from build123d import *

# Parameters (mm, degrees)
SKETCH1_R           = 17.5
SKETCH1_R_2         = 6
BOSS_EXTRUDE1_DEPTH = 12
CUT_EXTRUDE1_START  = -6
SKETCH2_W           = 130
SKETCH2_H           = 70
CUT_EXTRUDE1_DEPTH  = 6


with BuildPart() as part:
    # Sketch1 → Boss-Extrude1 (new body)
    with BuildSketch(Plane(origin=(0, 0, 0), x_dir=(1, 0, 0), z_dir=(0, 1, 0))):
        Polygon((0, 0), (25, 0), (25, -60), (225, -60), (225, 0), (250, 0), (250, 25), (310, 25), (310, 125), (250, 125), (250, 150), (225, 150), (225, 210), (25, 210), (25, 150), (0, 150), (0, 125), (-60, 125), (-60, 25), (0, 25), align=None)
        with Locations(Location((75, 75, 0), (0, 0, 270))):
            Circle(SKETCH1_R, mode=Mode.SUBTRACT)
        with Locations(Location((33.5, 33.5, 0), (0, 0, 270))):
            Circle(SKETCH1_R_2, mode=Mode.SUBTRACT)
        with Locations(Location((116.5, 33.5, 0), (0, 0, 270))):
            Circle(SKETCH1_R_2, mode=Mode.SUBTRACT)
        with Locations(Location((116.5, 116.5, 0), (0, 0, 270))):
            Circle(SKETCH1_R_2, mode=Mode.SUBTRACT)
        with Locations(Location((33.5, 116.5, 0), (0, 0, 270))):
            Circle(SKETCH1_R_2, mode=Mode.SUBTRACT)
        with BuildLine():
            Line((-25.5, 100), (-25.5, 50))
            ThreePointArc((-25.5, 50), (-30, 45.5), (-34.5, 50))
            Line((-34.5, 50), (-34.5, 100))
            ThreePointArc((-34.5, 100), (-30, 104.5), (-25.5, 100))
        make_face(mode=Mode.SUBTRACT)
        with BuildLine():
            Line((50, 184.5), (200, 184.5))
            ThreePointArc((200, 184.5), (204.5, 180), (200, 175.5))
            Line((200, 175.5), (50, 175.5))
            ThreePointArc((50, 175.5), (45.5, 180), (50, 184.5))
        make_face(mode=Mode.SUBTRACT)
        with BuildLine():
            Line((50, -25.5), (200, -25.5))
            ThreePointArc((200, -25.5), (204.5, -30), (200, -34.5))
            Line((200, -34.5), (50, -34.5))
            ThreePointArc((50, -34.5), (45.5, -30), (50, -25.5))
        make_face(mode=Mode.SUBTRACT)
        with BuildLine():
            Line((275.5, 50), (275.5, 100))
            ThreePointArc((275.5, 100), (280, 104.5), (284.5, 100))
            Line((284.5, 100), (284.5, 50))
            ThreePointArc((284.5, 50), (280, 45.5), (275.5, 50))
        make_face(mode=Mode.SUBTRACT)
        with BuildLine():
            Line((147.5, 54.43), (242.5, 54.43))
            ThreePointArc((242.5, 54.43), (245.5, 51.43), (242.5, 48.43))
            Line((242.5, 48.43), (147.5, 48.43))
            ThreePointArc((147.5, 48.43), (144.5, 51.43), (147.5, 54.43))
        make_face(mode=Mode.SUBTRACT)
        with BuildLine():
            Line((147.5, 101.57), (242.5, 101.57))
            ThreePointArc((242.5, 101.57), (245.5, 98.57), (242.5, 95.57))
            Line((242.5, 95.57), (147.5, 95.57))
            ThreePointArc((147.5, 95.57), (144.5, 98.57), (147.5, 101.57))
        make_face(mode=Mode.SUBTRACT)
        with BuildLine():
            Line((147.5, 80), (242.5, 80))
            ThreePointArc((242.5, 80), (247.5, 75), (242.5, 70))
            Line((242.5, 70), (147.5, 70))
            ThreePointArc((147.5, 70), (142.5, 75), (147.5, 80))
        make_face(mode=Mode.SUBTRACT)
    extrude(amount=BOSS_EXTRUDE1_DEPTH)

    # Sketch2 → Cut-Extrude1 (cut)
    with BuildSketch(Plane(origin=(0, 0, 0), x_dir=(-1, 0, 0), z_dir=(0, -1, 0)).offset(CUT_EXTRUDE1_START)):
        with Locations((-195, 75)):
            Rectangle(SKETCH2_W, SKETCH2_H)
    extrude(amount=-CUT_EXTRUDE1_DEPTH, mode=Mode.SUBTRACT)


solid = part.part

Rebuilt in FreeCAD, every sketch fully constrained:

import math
import FreeCAD as App
import Part
import Sketcher
from FreeCAD import Vector

doc = App.newDocument("Part")
body = doc.addObject("PartDesign::Body", "Body")

# Sketch on XZ plane
sketch1 = doc.addObject("Sketcher::SketchObject", "Sketch")
body.addObject(sketch1)
sketch1.AttachmentSupport = (doc.XZ_Plane, [""])
sketch1.MapMode = "FlatFace"
sketch1.addGeometry([
    Part.LineSegment(Vector(0, 0, 0), Vector(25, 0, 0)),  # 0
    Part.LineSegment(Vector(25, 0, 0), Vector(25, 60, 0)),  # 1
    Part.LineSegment(Vector(25, 60, 0), Vector(225, 60, 0)),  # 2
    Part.LineSegment(Vector(225, 60, 0), Vector(225, 0, 0)),  # 3
    Part.LineSegment(Vector(225, 0, 0), Vector(250, 0, 0)),  # 4
    Part.LineSegment(Vector(250, 0, 0), Vector(250, -25, 0)),  # 5
    Part.LineSegment(Vector(250, -25, 0), Vector(310, -25, 0)),  # 6
    Part.LineSegment(Vector(310, -25, 0), Vector(310, -125, 0)),  # 7
    Part.LineSegment(Vector(310, -125, 0), Vector(250, -125, 0)),  # 8
    Part.LineSegment(Vector(250, -125, 0), Vector(250, -150, 0)),  # 9
    Part.LineSegment(Vector(250, -150, 0), Vector(225, -150, 0)),  # 10
    Part.LineSegment(Vector(225, -150, 0), Vector(225, -210, 0)),  # 11
    Part.LineSegment(Vector(225, -210, 0), Vector(25, -210, 0)),  # 12
    Part.LineSegment(Vector(25, -210, 0), Vector(25, -150, 0)),  # 13
    Part.LineSegment(Vector(25, -150, 0), Vector(0, -150, 0)),  # 14
    Part.LineSegment(Vector(0, -150, 0), Vector(0, -125, 0)),  # 15
    Part.LineSegment(Vector(0, -125, 0), Vector(-60, -125, 0)),  # 16
    Part.LineSegment(Vector(-60, -125, 0), Vector(-60, -25, 0)),  # 17
    Part.LineSegment(Vector(-60, -25, 0), Vector(0, -25, 0)),  # 18
    Part.LineSegment(Vector(0, -25, 0), Vector(0, 0, 0)),  # 19
    Part.Circle(Vector(33.5, -33.5, 0), Vector(0, 0, 1), 6),  # 20
    Part.Circle(Vector(116.5, -33.5, 0), Vector(0, 0, 1), 6),  # 21
    Part.ArcOfCircle(Part.Circle(Vector(50, 30, 0), Vector(0, 0, 1), 4.5), math.radians(90), math.radians(270)),  # 22
    Part.LineSegment(Vector(50, 25.5, 0), Vector(200, 25.5, 0)),  # 23
    Part.ArcOfCircle(Part.Circle(Vector(200, 30, 0), Vector(0, 0, 1), 4.5), math.radians(-90), math.radians(90)),  # 24
    Part.LineSegment(Vector(200, 34.5, 0), Vector(50, 34.5, 0)),  # 25
    Part.ArcOfCircle(Part.Circle(Vector(147.5, -51.43, 0), Vector(0, 0, 1), 3), math.radians(90), math.radians(270)),  # 26
    Part.LineSegment(Vector(147.5, -54.43, 0), Vector(242.5, -54.43, 0)),  # 27
    Part.ArcOfCircle(Part.Circle(Vector(242.5, -51.43, 0), Vector(0, 0, 1), 3), math.radians(-90), math.radians(90)),  # 28
    Part.LineSegment(Vector(242.5, -48.43, 0), Vector(147.5, -48.43, 0)),  # 29
    Part.ArcOfCircle(Part.Circle(Vector(-30, -100, 0), Vector(0, 0, 1), 4.5), math.radians(180), math.radians(360)),  # 30
    Part.LineSegment(Vector(-25.5, -100, 0), Vector(-25.5, -50, 0)),  # 31
    Part.ArcOfCircle(Part.Circle(Vector(-30, -50, 0), Vector(0, 0, 1), 4.5), math.radians(0), math.radians(180)),  # 32
    Part.LineSegment(Vector(-34.5, -50, 0), Vector(-34.5, -100, 0)),  # 33
    Part.Circle(Vector(33.5, -116.5, 0), Vector(0, 0, 1), 6),  # 34
    Part.Circle(Vector(75, -75, 0), Vector(0, 0, 1), 17.5),  # 35
    Part.Circle(Vector(116.5, -116.5, 0), Vector(0, 0, 1), 6),  # 36
    Part.ArcOfCircle(Part.Circle(Vector(147.5, -75, 0), Vector(0, 0, 1), 5), math.radians(90), math.radians(270)),  # 37
    Part.LineSegment(Vector(147.5, -80, 0), Vector(242.5, -80, 0)),  # 38
    Part.ArcOfCircle(Part.Circle(Vector(242.5, -75, 0), Vector(0, 0, 1), 5), math.radians(-90), math.radians(90)),  # 39
    Part.LineSegment(Vector(242.5, -70, 0), Vector(147.5, -70, 0)),  # 40
    Part.ArcOfCircle(Part.Circle(Vector(147.5, -98.57, 0), Vector(0, 0, 1), 3), math.radians(90), math.radians(270)),  # 41
    Part.LineSegment(Vector(147.5, -101.57, 0), Vector(242.5, -101.57, 0)),  # 42
    Part.ArcOfCircle(Part.Circle(Vector(242.5, -98.57, 0), Vector(0, 0, 1), 3), math.radians(-90), math.radians(90)),  # 43
    Part.LineSegment(Vector(242.5, -95.57, 0), Vector(147.5, -95.57, 0)),  # 44
    Part.ArcOfCircle(Part.Circle(Vector(280, -50, 0), Vector(0, 0, 1), 4.5), math.radians(0), math.radians(180)),  # 45
    Part.LineSegment(Vector(275.5, -50, 0), Vector(275.5, -100, 0)),  # 46
    Part.ArcOfCircle(Part.Circle(Vector(280, -100, 0), Vector(0, 0, 1), 4.5), math.radians(180), math.radians(360)),  # 47
    Part.LineSegment(Vector(284.5, -100, 0), Vector(284.5, -50, 0)),  # 48
    Part.ArcOfCircle(Part.Circle(Vector(50, -180, 0), Vector(0, 0, 1), 4.5), math.radians(90), math.radians(270)),  # 49
    Part.LineSegment(Vector(50, -184.5, 0), Vector(200, -184.5, 0)),  # 50
    Part.ArcOfCircle(Part.Circle(Vector(200, -180, 0), Vector(0, 0, 1), 4.5), math.radians(-90), math.radians(90)),  # 51
    Part.LineSegment(Vector(200, -175.5, 0), Vector(50, -175.5, 0)),  # 52
], False)
sketch1.addConstraint([
    Sketcher.Constraint("Coincident", 0, 2, 1, 1),
    Sketcher.Constraint("Coincident", 1, 2, 2, 1),
    Sketcher.Constraint("Coincident", 2, 2, 3, 1),
    Sketcher.Constraint("Coincident", 3, 2, 4, 1),
    Sketcher.Constraint("Coincident", 4, 2, 5, 1),
    Sketcher.Constraint("Coincident", 5, 2, 6, 1),
    Sketcher.Constraint("Coincident", 6, 2, 7, 1),
    Sketcher.Constraint("Coincident", 7, 2, 8, 1),
    Sketcher.Constraint("Coincident", 8, 2, 9, 1),
    Sketcher.Constraint("Coincident", 9, 2, 10, 1),
    Sketcher.Constraint("Coincident", 10, 2, 11, 1),
    Sketcher.Constraint("Coincident", 11, 2, 12, 1),
    Sketcher.Constraint("Coincident", 12, 2, 13, 1),
    Sketcher.Constraint("Coincident", 13, 2, 14, 1),
    Sketcher.Constraint("Coincident", 14, 2, 15, 1),
    Sketcher.Constraint("Coincident", 15, 2, 16, 1),
    Sketcher.Constraint("Coincident", 16, 2, 17, 1),
    Sketcher.Constraint("Coincident", 17, 2, 18, 1),
    Sketcher.Constraint("Coincident", 18, 2, 19, 1),
    Sketcher.Constraint("Coincident", 19, 2, 0, 1),
    Sketcher.Constraint("Tangent", 22, 2, 23, 1),
    Sketcher.Constraint("Tangent", 23, 2, 24, 1),
    Sketcher.Constraint("Tangent", 24, 2, 25, 1),
    Sketcher.Constraint("Tangent", 25, 2, 22, 1),
    Sketcher.Constraint("Tangent", 26, 2, 27, 1),
    Sketcher.Constraint("Tangent", 27, 2, 28, 1),
    Sketcher.Constraint("Tangent", 28, 2, 29, 1),
    Sketcher.Constraint("Tangent", 29, 2, 26, 1),
    Sketcher.Constraint("Tangent", 30, 2, 31, 1),
    Sketcher.Constraint("Tangent", 31, 2, 32, 1),
    Sketcher.Constraint("Tangent", 32, 2, 33, 1),
    Sketcher.Constraint("Tangent", 33, 2, 30, 1),
    Sketcher.Constraint("Tangent", 37, 2, 38, 1),
    Sketcher.Constraint("Tangent", 38, 2, 39, 1),
    Sketcher.Constraint("Tangent", 39, 2, 40, 1),
    Sketcher.Constraint("Tangent", 40, 2, 37, 1),
    Sketcher.Constraint("Tangent", 41, 2, 42, 1),
    Sketcher.Constraint("Tangent", 42, 2, 43, 1),
    Sketcher.Constraint("Tangent", 43, 2, 44, 1),
    Sketcher.Constraint("Tangent", 44, 2, 41, 1),
    Sketcher.Constraint("Tangent", 45, 2, 46, 1),
    Sketcher.Constraint("Tangent", 46, 2, 47, 1),
    Sketcher.Constraint("Tangent", 47, 2, 48, 1),
    Sketcher.Constraint("Tangent", 48, 2, 45, 1),
    Sketcher.Constraint("Tangent", 49, 2, 50, 1),
    Sketcher.Constraint("Tangent", 50, 2, 51, 1),
    Sketcher.Constraint("Tangent", 51, 2, 52, 1),
    Sketcher.Constraint("Tangent", 52, 2, 49, 1),
    Sketcher.Constraint("Horizontal", 0),
    Sketcher.Constraint("Vertical", 1),
    Sketcher.Constraint("Horizontal", 2),
    Sketcher.Constraint("Vertical", 3),
    Sketcher.Constraint("Horizontal", 4),
    Sketcher.Constraint("Vertical", 5),
    Sketcher.Constraint("Horizontal", 6),
    Sketcher.Constraint("Vertical", 7),
    Sketcher.Constraint("Horizontal", 8),
    Sketcher.Constraint("Vertical", 9),
    Sketcher.Constraint("Horizontal", 10),
    Sketcher.Constraint("Vertical", 11),
    Sketcher.Constraint("Horizontal", 12),
    Sketcher.Constraint("Vertical", 13),
    Sketcher.Constraint("Horizontal", 14),
    Sketcher.Constraint("Vertical", 15),
    Sketcher.Constraint("Horizontal", 16),
    Sketcher.Constraint("Vertical", 17),
    Sketcher.Constraint("Horizontal", 18),
    Sketcher.Constraint("Vertical", 19),
    Sketcher.Constraint("Horizontal", 23),
    Sketcher.Constraint("Horizontal", 25),
    Sketcher.Constraint("Horizontal", 27),
    Sketcher.Constraint("Horizontal", 29),
    Sketcher.Constraint("Vertical", 31),
    Sketcher.Constraint("Vertical", 33),
    Sketcher.Constraint("Horizontal", 38),
    Sketcher.Constraint("Horizontal", 40),
    Sketcher.Constraint("Horizontal", 42),
    Sketcher.Constraint("Horizontal", 44),
    Sketcher.Constraint("Vertical", 46),
    Sketcher.Constraint("Vertical", 48),
    Sketcher.Constraint("Horizontal", 50),
    Sketcher.Constraint("Horizontal", 52),
    Sketcher.Constraint("Coincident", 19, 2, -1, 1),
    Sketcher.Constraint("Equal", 20, 21),
    Sketcher.Constraint("Equal", 24, 30),
    Sketcher.Constraint("Equal", 21, 34),
    Sketcher.Constraint("Equal", 34, 36),
    Sketcher.Constraint("Equal", 28, 41),
    Sketcher.Constraint("Equal", 32, 45),
    Sketcher.Constraint("Equal", 47, 49),
    Sketcher.Constraint("PointOnObject", 3, 2, -1),
    Sketcher.Constraint("PointOnObject", 14, 2, -2),
    Sketcher.Constraint("Horizontal", 20, 3, 21, 3),
    Sketcher.Constraint("Horizontal", 34, 3, 36, 3),
    Sketcher.Constraint("Horizontal", 35, 3, 37, 3),
    Sketcher.Constraint("Horizontal", 32, 3, 45, 3),
    Sketcher.Constraint("Horizontal", 30, 3, 47, 3),
    Sketcher.Constraint("Horizontal", 10, 2, 13, 2),
    Sketcher.Constraint("Horizontal", 8, 2, 15, 2),
    Sketcher.Constraint("Horizontal", 6, 2, 17, 2),
    Sketcher.Constraint("Vertical", 20, 3, 34, 3),
    Sketcher.Constraint("Vertical", 21, 3, 36, 3),
    Sketcher.Constraint("Vertical", 26, 3, 37, 3),
    Sketcher.Constraint("Vertical", 28, 3, 39, 3),
    Sketcher.Constraint("Vertical", 37, 3, 41, 3),
    Sketcher.Constraint("Vertical", 39, 3, 43, 3),
    Sketcher.Constraint("Vertical", 22, 3, 49, 3),
    Sketcher.Constraint("Vertical", 24, 3, 51, 3),
    Sketcher.Constraint("Vertical", 5, 2, 8, 2),
    Sketcher.Constraint("Vertical", 3, 2, 10, 2),
    Sketcher.Constraint("Vertical", 1, 2, 12, 2),
    Sketcher.Constraint("Equal", 0, 4),
    Sketcher.Constraint("Equal", 8, 16),
    Sketcher.Constraint("Equal", 18, 1),
    Sketcher.Constraint("Equal", 14, 5),
    Sketcher.Constraint("Equal", 5, 9),
    Sketcher.Constraint("Equal", 3, 11),
    Sketcher.Constraint("Diameter", 20, 12.0),
    Sketcher.Constraint("Diameter", 35, 35.0),
    Sketcher.Constraint("Radius", 26, 3.0),
    Sketcher.Constraint("Radius", 37, 5.0),
    Sketcher.Constraint("Radius", 22, 4.5),
    Sketcher.Constraint("DistanceX", 0, 1, 0, 2, 25.0),
    Sketcher.Constraint("DistanceX", 2, 1, 2, 2, 200.0),
    Sketcher.Constraint("DistanceX", 6, 1, 6, 2, 60.0),
    Sketcher.Constraint("DistanceX", 23, 1, 23, 2, 150.0),
    Sketcher.Constraint("DistanceX", 27, 1, 27, 2, 95.0),
    Sketcher.Constraint("DistanceY", 7, 2, 7, 1, 100.0),
    Sketcher.Constraint("DistanceY", 31, 1, 31, 2, 50.0),
    Sketcher.Constraint("DistanceX", -1, 1, 22, 3, 50.0),
    Sketcher.Constraint("DistanceY", -1, 1, 22, 3, 30.0),
    Sketcher.Constraint("DistanceX", 30, 3, -1, 1, 30.0),
    Sketcher.Constraint("DistanceY", 30, 3, -1, 1, 100.0),
    Sketcher.Constraint("DistanceX", -1, 1, 35, 3, 75.0),
    Sketcher.Constraint("DistanceY", 35, 3, -1, 1, 75.0),
    Sketcher.Constraint("DistanceX", -1, 1, 45, 3, 280.0),
    Sketcher.Constraint("DistanceY", 49, 3, -1, 1, 180.0),
    Sketcher.Constraint("DistanceX", -1, 1, 20, 3, 33.5),
    Sketcher.Constraint("DistanceY", 20, 3, -1, 1, 33.5),
    Sketcher.Constraint("DistanceX", -1, 1, 21, 3, 116.5),
    Sketcher.Constraint("DistanceX", -1, 1, 26, 3, 147.5),
    Sketcher.Constraint("DistanceY", 34, 3, -1, 1, 116.5),
    Sketcher.Constraint("DistanceY", 26, 3, -1, 1, 51.43),
    Sketcher.Constraint("DistanceY", 41, 3, -1, 1, 98.57),
])
pad1 = doc.addObject("PartDesign::Pad", "Pad")
body.addObject(pad1)
pad1.Profile = sketch1
pad1.Length = 12
pad1.Reversed = True

# Sketch on XZ plane
sketch2 = doc.addObject("Sketcher::SketchObject", "Sketch001")
body.addObject(sketch2)
sketch2.AttachmentSupport = (doc.XZ_Plane, [""])
sketch2.MapMode = "FlatFace"
sketch2.AttachmentOffset = App.Placement(Vector(0, 0, -6), App.Rotation())
sketch2.addGeometry([
    Part.LineSegment(Vector(260, -110, 0), Vector(260, -40, 0)),
    Part.LineSegment(Vector(260, -40, 0), Vector(130, -40, 0)),
    Part.LineSegment(Vector(130, -40, 0), Vector(130, -110, 0)),
    Part.LineSegment(Vector(130, -110, 0), Vector(260, -110, 0)),
], False)
sketch2.addConstraint([
    Sketcher.Constraint("Coincident", 0, 2, 1, 1),
    Sketcher.Constraint("Coincident", 1, 2, 2, 1),
    Sketcher.Constraint("Coincident", 2, 2, 3, 1),
    Sketcher.Constraint("Coincident", 3, 2, 0, 1),
    Sketcher.Constraint("Vertical", 0),
    Sketcher.Constraint("Horizontal", 1),
    Sketcher.Constraint("Vertical", 2),
    Sketcher.Constraint("Horizontal", 3),
    Sketcher.Constraint("DistanceX", 1, 2, 1, 1, 130.0),
    Sketcher.Constraint("DistanceY", 0, 1, 0, 2, 70.0),
    Sketcher.Constraint("DistanceX", -1, 1, 0, 2, 260.0),
    Sketcher.Constraint("DistanceY", 0, 2, -1, 1, 40.0),
])
pocket1 = doc.addObject("PartDesign::Pocket", "Pocket")
body.addObject(pocket1)
pocket1.Profile = sketch2
pocket1.Length = 6

doc.recompute()
